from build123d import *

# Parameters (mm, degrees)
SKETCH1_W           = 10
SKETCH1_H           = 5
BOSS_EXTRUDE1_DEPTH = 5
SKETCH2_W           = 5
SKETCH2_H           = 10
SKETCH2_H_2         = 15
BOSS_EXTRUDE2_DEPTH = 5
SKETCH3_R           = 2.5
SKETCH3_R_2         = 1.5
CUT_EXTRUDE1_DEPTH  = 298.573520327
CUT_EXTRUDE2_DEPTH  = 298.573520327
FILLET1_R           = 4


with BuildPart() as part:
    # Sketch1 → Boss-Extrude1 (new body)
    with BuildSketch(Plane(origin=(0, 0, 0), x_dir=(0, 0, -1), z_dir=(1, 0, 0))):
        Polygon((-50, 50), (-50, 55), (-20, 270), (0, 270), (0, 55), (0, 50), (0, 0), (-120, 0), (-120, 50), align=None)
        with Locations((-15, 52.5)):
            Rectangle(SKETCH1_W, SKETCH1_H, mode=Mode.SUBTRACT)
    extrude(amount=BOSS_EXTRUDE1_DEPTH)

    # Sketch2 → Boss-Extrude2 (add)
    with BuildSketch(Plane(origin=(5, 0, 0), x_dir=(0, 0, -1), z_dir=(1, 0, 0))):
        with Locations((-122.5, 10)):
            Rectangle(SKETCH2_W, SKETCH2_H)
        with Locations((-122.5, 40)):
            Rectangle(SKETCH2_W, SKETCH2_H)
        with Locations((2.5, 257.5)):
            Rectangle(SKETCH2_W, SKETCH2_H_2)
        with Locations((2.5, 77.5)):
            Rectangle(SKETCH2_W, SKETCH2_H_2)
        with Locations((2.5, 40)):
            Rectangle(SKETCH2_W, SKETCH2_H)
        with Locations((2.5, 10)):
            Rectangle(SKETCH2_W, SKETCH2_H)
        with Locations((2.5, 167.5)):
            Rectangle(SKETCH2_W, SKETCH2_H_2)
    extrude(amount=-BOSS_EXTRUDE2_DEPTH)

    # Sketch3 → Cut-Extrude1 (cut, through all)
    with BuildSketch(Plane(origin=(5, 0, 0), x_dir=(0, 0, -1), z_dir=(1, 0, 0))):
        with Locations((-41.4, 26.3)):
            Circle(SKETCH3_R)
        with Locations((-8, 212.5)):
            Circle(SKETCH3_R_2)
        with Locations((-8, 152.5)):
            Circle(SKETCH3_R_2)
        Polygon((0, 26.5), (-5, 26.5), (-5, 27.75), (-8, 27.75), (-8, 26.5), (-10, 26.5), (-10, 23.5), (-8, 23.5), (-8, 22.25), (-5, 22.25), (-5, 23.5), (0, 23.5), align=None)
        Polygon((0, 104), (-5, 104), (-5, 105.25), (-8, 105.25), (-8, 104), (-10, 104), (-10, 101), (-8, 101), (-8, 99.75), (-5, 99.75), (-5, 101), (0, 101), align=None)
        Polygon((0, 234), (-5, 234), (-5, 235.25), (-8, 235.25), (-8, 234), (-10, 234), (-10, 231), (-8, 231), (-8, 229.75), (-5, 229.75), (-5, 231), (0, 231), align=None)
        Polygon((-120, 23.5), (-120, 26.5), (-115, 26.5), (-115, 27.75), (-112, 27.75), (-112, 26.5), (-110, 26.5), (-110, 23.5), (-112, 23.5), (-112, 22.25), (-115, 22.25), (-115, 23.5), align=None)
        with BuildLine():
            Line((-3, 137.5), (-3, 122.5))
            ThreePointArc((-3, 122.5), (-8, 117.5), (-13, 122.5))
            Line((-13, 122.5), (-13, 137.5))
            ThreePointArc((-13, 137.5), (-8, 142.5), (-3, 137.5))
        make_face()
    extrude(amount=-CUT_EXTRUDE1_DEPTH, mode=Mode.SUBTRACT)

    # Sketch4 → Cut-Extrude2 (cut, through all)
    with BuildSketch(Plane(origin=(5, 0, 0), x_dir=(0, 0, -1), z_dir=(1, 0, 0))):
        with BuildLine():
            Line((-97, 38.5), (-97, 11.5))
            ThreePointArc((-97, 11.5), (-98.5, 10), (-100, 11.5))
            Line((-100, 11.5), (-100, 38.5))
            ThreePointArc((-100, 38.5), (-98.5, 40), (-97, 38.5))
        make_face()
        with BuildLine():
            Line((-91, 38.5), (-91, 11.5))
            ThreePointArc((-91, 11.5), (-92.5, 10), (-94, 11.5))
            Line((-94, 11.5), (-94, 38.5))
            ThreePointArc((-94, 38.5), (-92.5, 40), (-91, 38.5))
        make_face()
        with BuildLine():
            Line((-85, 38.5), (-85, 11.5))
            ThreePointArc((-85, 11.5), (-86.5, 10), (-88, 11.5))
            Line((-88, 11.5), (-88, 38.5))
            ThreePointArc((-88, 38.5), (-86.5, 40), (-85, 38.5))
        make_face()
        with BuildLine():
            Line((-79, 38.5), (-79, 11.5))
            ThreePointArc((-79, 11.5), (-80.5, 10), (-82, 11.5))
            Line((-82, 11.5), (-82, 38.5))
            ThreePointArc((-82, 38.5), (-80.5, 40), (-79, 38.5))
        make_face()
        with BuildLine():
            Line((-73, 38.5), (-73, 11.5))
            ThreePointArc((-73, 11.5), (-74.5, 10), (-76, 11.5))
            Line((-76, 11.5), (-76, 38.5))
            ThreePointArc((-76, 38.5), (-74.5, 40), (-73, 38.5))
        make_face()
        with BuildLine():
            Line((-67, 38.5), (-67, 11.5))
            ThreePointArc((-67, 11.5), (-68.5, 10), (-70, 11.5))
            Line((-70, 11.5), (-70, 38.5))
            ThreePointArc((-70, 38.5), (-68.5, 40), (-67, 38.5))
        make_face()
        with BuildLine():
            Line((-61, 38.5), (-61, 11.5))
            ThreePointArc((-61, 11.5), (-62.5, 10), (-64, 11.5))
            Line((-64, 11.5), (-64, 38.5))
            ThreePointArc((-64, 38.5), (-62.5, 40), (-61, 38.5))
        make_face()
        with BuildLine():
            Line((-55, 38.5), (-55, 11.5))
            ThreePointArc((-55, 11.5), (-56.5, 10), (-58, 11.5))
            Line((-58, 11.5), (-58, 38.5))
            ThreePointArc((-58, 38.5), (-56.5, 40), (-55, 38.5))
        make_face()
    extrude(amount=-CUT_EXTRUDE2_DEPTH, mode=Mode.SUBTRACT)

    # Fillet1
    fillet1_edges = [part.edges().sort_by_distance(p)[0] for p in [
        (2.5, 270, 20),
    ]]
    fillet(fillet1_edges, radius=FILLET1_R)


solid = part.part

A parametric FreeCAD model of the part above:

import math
import FreeCAD as App
import Part
import Sketcher


def edges_at(feature, points):
    """Names of the edges that pass closest to the given points."""
    edges = feature.Shape.Edges
    near = lambda p: min(range(len(edges)), key=lambda i: edges[i].distToShape(Part.Vertex(*p))[0])
    return sorted({f"Edge{near(p) + 1}" for p in points})


def add_polygon(sketch, points):
    """Adds a closed chain of lines whose ends are joined by coincident constraints."""
    first, n = sketch.GeometryCount, len(points)
    for a, b in zip(points, points[1:] + points[:1]):
        sketch.addGeometry(Part.LineSegment(App.Vector(*a, 0), App.Vector(*b, 0)), False)
    for i in range(n):
        sketch.addConstraint(Sketcher.Constraint("Coincident", first + i, 2, first + (i + 1) % n, 1))

doc = App.newDocument("Part")
body = doc.addObject("PartDesign::Body", "Body")

# Sketch on YZ plane
sketch1 = body.newObject("Sketcher::SketchObject", "Sketch")
sketch1.AttachmentSupport = (doc.getObject("YZ_Plane"), [""])
sketch1.MapMode = "FlatFace"
add_polygon(sketch1, [(55, 50), (50, 50), (50, 120), (0, 120), (0, 0), (270, 0), (270, 20)])  # lines 0-6
add_polygon(sketch1, [(50, 20), (55, 20), (55, 10), (50, 10)])  # lines 7-10
sketch1.addConstraint([
    Sketcher.Constraint("Horizontal", 0),
    Sketcher.Constraint("Vertical", 1),
    Sketcher.Constraint("Horizontal", 2),
    Sketcher.Constraint("Vertical", 3),
    Sketcher.Constraint("Horizontal", 4),
    Sketcher.Constraint("Vertical", 5),
    Sketcher.Constraint("Horizontal", 7),
    Sketcher.Constraint("Vertical", 8),
    Sketcher.Constraint("Horizontal", 9),
    Sketcher.Constraint("Vertical", 10),
    Sketcher.Constraint("Coincident", 3, 2, -1, 1),
    Sketcher.Constraint("Horizontal", 5, 2, 7, 2),
    Sketcher.Constraint("Vertical", 6, 2, 7, 2),
    Sketcher.Constraint("Vertical", 1, 2, 9, 2),
    Sketcher.Constraint("DistanceX", 0, 2, 0, 1, 5.0),
    Sketcher.Constraint("DistanceX", 2, 2, 2, 1, 50.0),
    Sketcher.Constraint("DistanceX", 4, 1, 4, 2, 270.0),
    Sketcher.Constraint("DistanceY", 1, 1, 1, 2, 70.0),
    Sketcher.Constraint("DistanceY", 3, 2, 3, 1, 120.0),
    Sketcher.Constraint("DistanceY", 5, 1, 5, 2, 20.0),
    Sketcher.Constraint("DistanceY", 8, 2, 8, 1, 10.0),
])
pad1 = body.newObject("PartDesign::Pad", "Pad")
pad1.Profile = sketch1
pad1.Length = 5

# Sketch on YZ plane
sketch2 = body.newObject("Sketcher::SketchObject", "Sketch001")
sketch2.AttachmentSupport = (doc.getObject("YZ_Plane"), [""])
sketch2.MapMode = "FlatFace"
sketch2.AttachmentOffset = App.Placement(App.Vector(0, 0, 5), App.Rotation())
add_polygon(sketch2, [(15, 125), (5, 125), (5, 120), (15, 120)])  # lines 0-3
add_polygon(sketch2, [(45, 125), (35, 125), (35, 120), (45, 120)])  # lines 4-7
add_polygon(sketch2, [(265, 0), (250, 0), (250, -5), (265, -5)])  # lines 8-11
add_polygon(sketch2, [(85, 0), (70, 0), (70, -5), (85, -5)])  # lines 12-15
add_polygon(sketch2, [(45, 0), (35, 0), (35, -5), (45, -5)])  # lines 16-19
add_polygon(sketch2, [(15, 0), (5, 0), (5, -5), (15, -5)])  # lines 20-23
add_polygon(sketch2, [(175, 0), (160, 0), (160, -5), (175, -5)])  # lines 24-27
sketch2.addConstraint([
    Sketcher.Constraint("Horizontal", 0),
    Sketcher.Constraint("Vertical", 1),
    Sketcher.Constraint("Horizontal", 2),
    Sketcher.Constraint("Vertical", 3),
    Sketcher.Constraint("Horizontal", 4),
    Sketcher.Constraint("Vertical", 5),
    Sketcher.Constraint("Horizontal", 6),
    Sketcher.Constraint("Vertical", 7),
    Sketcher.Constraint("Horizontal", 8),
    Sketcher.Constraint("Vertical", 9),
    Sketcher.Constraint("Horizontal", 10),
    Sketcher.Constraint("Vertical", 11),
    Sketcher.Constraint("Horizontal", 12),
    Sketcher.Constraint("Vertical", 13),
    Sketcher.Constraint("Horizontal", 14),
    Sketcher.Constraint("Vertical", 15),
    Sketcher.Constraint("Horizontal", 16),
    Sketcher.Constraint("Vertical", 17),
    Sketcher.Constraint("Horizontal", 18),
    Sketcher.Constraint("Vertical", 19),
    Sketcher.Constraint("Horizontal", 20),
    Sketcher.Constraint("Vertical", 21),
    Sketcher.Constraint("Horizontal", 22),
    Sketcher.Constraint("Vertical", 23),
    Sketcher.Constraint("Horizontal", 24),
    Sketcher.Constraint("Vertical", 25),
    Sketcher.Constraint("Horizontal", 26),
    Sketcher.Constraint("Vertical", 27),
    Sketcher.Constraint("PointOnObject", 8, 2, -1),
    Sketcher.Constraint("PointOnObject", 12, 2, -1),
    Sketcher.Constraint("PointOnObject", 16, 2, -1),
    Sketcher.Constraint("PointOnObject", 20, 2, -1),
    Sketcher.Constraint("PointOnObject", 24, 2, -1),
    Sketcher.Constraint("Horizontal", 3, 2, 4, 2),
    Sketcher.Constraint("Horizontal", 2, 2, 5, 2),
    Sketcher.Constraint("Horizontal", 10, 2, 13, 2),
    Sketcher.Constraint("Horizontal", 14, 2, 17, 2),
    Sketcher.Constraint("Horizontal", 18, 2, 21, 2),
    Sketcher.Constraint("Horizontal", 22, 2, 25, 2),
    Sketcher.Constraint("Vertical", 5, 2, 16, 2),
    Sketcher.Constraint("Vertical", 7, 2, 18, 2),
    Sketcher.Constraint("Vertical", 1, 2, 20, 2),
    Sketcher.Constraint("Vertical", 3, 2, 22, 2),
    Sketcher.Constraint("Equal", 2, 4),
    Sketcher.Constraint("Equal", 10, 12),
    Sketcher.Constraint("Equal", 14, 24),
    Sketcher.Constraint("Equal", 7, 9),
    Sketcher.Constraint("DistanceX", 0, 2, 0, 1, 10.0),
    Sketcher.Constraint("DistanceX", 8, 2, 8, 1, 15.0),
    Sketcher.Constraint("DistanceY", 1, 2, 1, 1, 5.0),
    Sketcher.Constraint("DistanceX", -1, 1, 0, 2, 5.0),
    Sketcher.Constraint("DistanceY", -1, 1, 0, 2, 125.0),
    Sketcher.Constraint("DistanceX", -1, 1, 4, 2, 35.0),
    Sketcher.Constraint("DistanceX", -1, 1, 8, 2, 250.0),
    Sketcher.Constraint("DistanceX", -1, 1, 12, 2, 70.0),
    Sketcher.Constraint("DistanceX", -1, 1, 24, 2, 160.0),
])
pad2 = body.newObject("PartDesign::Pad", "Pad001")
pad2.Profile = sketch2
pad2.Length = 5
pad2.Reversed = True

# Sketch on YZ plane
sketch3 = body.newObject("Sketcher::SketchObject", "Sketch002")
sketch3.AttachmentSupport = (doc.getObject("YZ_Plane"), [""])
sketch3.MapMode = "FlatFace"
sketch3.AttachmentOffset = App.Placement(App.Vector(0, 0, 5), App.Rotation())
sketch3.addGeometry(Part.Circle(App.Vector(26.3, 41.4, 0), App.Vector(0, 0, 1), 2.5), False)  # 0
sketch3.addGeometry(Part.Circle(App.Vector(212.5, 8, 0), App.Vector(0, 0, 1), 1.5), False)  # 1
sketch3.addGeometry(Part.Circle(App.Vector(152.5, 8, 0), App.Vector(0, 0, 1), 1.5), False)  # 2
add_polygon(sketch3, [(26.5, 0), (26.5, 5), (27.8, 5), (27.8, 8), (26.5, 8), (26.5, 10), (23.5, 10), (23.5, 8), (22.2, 8), (22.2, 5), (23.5, 5), (23.5, 0)])  # lines 3-14
add_polygon(sketch3, [(104, 0), (104, 5), (105.2, 5), (105.2, 8), (104, 8), (104, 10), (101, 10), (101, 8), (99.8, 8), (99.8, 5), (101, 5), (101, 0)])  # lines 15-26
add_polygon(sketch3, [(234, 0), (234, 5), (235.2, 5), (235.2, 8), (234, 8), (234, 10), (231, 10), (231, 8), (229.8, 8), (229.8, 5), (231, 5), (231, 0)])  # lines 27-38
add_polygon(sketch3, [(26.5, 120), (23.5, 120), (23.5, 115), (22.2, 115), (22.2, 112), (23.5, 112), (23.5, 110), (26.5, 110), (26.5, 112), (27.8, 112), (27.8, 115), (26.5, 115)])  # lines 39-50
sketch3.addGeometry(Part.LineSegment(App.Vector(122.5, 3, 0), App.Vector(137.5, 3, 0)), False)  # 51
sketch3.addGeometry(Part.ArcOfCircle(Part.Circle(App.Vector(137.5, 8, 0), App.Vector(0, 0, 1), 5), math.radians(-90), math.radians(90)), False)  # 52
sketch3.addGeometry(Part.LineSegment(App.Vector(137.5, 13, 0), App.Vector(122.5, 13, 0)), False)  # 53
sketch3.addGeometry(Part.ArcOfCircle(Part.Circle(App.Vector(122.5, 8, 0), App.Vector(0, 0, 1), 5), math.radians(90), math.radians(270)), False)  # 54
sketch3.addConstraint([
    Sketcher.Constraint("Tangent", 51, 2, 52, 1),
    Sketcher.Constraint("Tangent", 52, 2, 53, 1),
    Sketcher.Constraint("Tangent", 53, 2, 54, 1),
    Sketcher.Constraint("Tangent", 54, 2, 51, 1),
    Sketcher.Constraint("Vertical", 3),
    Sketcher.Constraint("Horizontal", 4),
    Sketcher.Constraint("Vertical", 5),
    Sketcher.Constraint("Horizontal", 6),
    Sketcher.Constraint("Vertical", 7),
    Sketcher.Constraint("Horizontal", 8),
    Sketcher.Constraint("Vertical", 9),
    Sketcher.Constraint("Horizontal", 10),
    Sketcher.Constraint("Vertical", 11),
    Sketcher.Constraint("Horizontal", 12),
    Sketcher.Constraint("Vertical", 13),
    Sketcher.Constraint("Horizontal", 14),
    Sketcher.Constraint("Vertical", 15),
    Sketcher.Constraint("Horizontal", 16),
    Sketcher.Constraint("Vertical", 17),
    Sketcher.Constraint("Horizontal", 18),
    Sketcher.Constraint("Vertical", 19),
    Sketcher.Constraint("Horizontal", 20),
    Sketcher.Constraint("Vertical", 21),
    Sketcher.Constraint("Horizontal", 22),
    Sketcher.Constraint("Vertical", 23),
    Sketcher.Constraint("Horizontal", 24),
    Sketcher.Constraint("Vertical", 25),
    Sketcher.Constraint("Horizontal", 26),
    Sketcher.Constraint("Vertical", 27),
    Sketcher.Constraint("Horizontal", 28),
    Sketcher.Constraint("Vertical", 29),
    Sketcher.Constraint("Horizontal", 30),
    Sketcher.Constraint("Vertical", 31),
    Sketcher.Constraint("Horizontal", 32),
    Sketcher.Constraint("Vertical", 33),
    Sketcher.Constraint("Horizontal", 34),
    Sketcher.Constraint("Vertical", 35),
    Sketcher.Constraint("Horizontal", 36),
    Sketcher.Constraint("Vertical", 37),
    Sketcher.Constraint("Horizontal", 38),
    Sketcher.Constraint("Horizontal", 39),
    Sketcher.Constraint("Vertical", 40),
    Sketcher.Constraint("Horizontal", 41),
    Sketcher.Constraint("Vertical", 42),
    Sketcher.Constraint("Horizontal", 43),
    Sketcher.Constraint("Vertical", 44),
    Sketcher.Constraint("Horizontal", 45),
    Sketcher.Constraint("Vertical", 46),
    Sketcher.Constraint("Horizontal", 47),
    Sketcher.Constraint("Vertical", 48),
    Sketcher.Constraint("Horizontal", 49),
    Sketcher.Constraint("Vertical", 50),
    Sketcher.Constraint("Horizontal", 51),
    Sketcher.Constraint("Horizontal", 53),
    Sketcher.Constraint("Equal", 1, 2),
    Sketcher.Constraint("PointOnObject", 13, 2, -1),
    Sketcher.Constraint("PointOnObject", 25, 2, -1),
    Sketcher.Constraint("PointOnObject", 37, 2, -1),
    Sketcher.Constraint("Horizontal", 1, 3, 2, 3),
    Sketcher.Constraint("Horizontal", 2, 3, 52, 3),
    Sketcher.Constraint("Horizontal", 54, 3, 5, 2),
    Sketcher.Constraint("Horizontal", 6, 2, 9, 2),
    Sketcher.Constraint("Horizontal", 4, 2, 11, 2),
    Sketcher.Constraint("Horizontal", 12, 2, 15, 2),
    Sketcher.Constraint("Horizontal", 10, 2, 17, 2),
    Sketcher.Constraint("Horizontal", 8, 2, 19, 2),
    Sketcher.Constraint("Horizontal", 18, 2, 21, 2),
    Sketcher.Constraint("Horizontal", 16, 2, 23, 2),
    Sketcher.Constraint("Horizontal", 24, 2, 27, 2),
    Sketcher.Constraint("Horizontal", 22, 2, 29, 2),
    Sketcher.Constraint("Horizontal", 20, 2, 31, 2),
    Sketcher.Constraint("Horizontal", 30, 2, 33, 2),
    Sketcher.Constraint("Horizontal", 28, 2, 35, 2),
    Sketcher.Constraint("Horizontal", 43, 2, 46, 2),
    Sketcher.Constraint("Horizontal", 41, 2, 48, 2),
    Sketcher.Constraint("Vertical", 3, 2, 6, 2),
    Sketcher.Constraint("Vertical", 9, 2, 12, 2),
    Sketcher.Constraint("Vertical", 15, 2, 18, 2),
    Sketcher.Constraint("Vertical", 21, 2, 24, 2),
    Sketcher.Constraint("Vertical", 27, 2, 30, 2),
    Sketcher.Constraint("Vertical", 33, 2, 36, 2),
    Sketcher.Constraint("Vertical", 13, 2, 39, 2),
    Sketcher.Constraint("Vertical", 11, 2, 41, 2),
    Sketcher.Constraint("Vertical", 40, 2, 43, 2),
    Sketcher.Constraint("Vertical", 14, 2, 45, 2),
    Sketcher.Constraint("Vertical", 5, 2, 47, 2),
    Sketcher.Constraint("Vertical", 46, 2, 49, 2),
    Sketcher.Constraint("Equal", 6, 10),
    Sketcher.Constraint("Equal", 12, 16),
    Sketcher.Constraint("Equal", 14, 20),
    Sketcher.Constraint("Equal", 18, 22),
    Sketcher.Constraint("Equal", 24, 28),
    Sketcher.Constraint("Equal", 26, 32),
    Sketcher.Constraint("Equal", 30, 34),
    Sketcher.Constraint("Equal", 45, 5),
    Sketcher.Constraint("Equal", 37, 40),
    Sketcher.Constraint("Equal", 35, 42),
    Sketcher.Constraint("Equal", 33, 44),
    Sketcher.Constraint("Diameter", 0, 5.0),
    Sketcher.Constraint("Diameter", 1, 3.0),
    Sketcher.Constraint("Radius", 52, 5.0),
    Sketcher.Constraint("DistanceX", 8, 2, 8, 1, 3.0),
    Sketcher.Constraint("DistanceX", 51, 1, 51, 2, 15.0),
    Sketcher.Constraint("DistanceY", 3, 1, 3, 2, 5.0),
    Sketcher.Constraint("DistanceY", 7, 1, 7, 2, 2.0),
    Sketcher.Constraint("DistanceX", -1, 1, 15, 2, 104.0),
    Sketcher.Constraint("DistanceX", -1, 1, 27, 2, 234.0),
    Sketcher.Constraint("DistanceY", -1, 1, 39, 2, 120.0),
    Sketcher.Constraint("DistanceX", 2, 3, 1, 3, 60.0),
    Sketcher.Constraint("DistanceX", 52, 3, 2, 3, 15.0),
    Sketcher.Constraint("DistanceX", 3, 2, 54, 3, 96.0),
    Sketcher.Constraint("DistanceX", 4, 1, 4, 2, 1.25),
    Sketcher.Constraint("DistanceX", -1, 1, 0, 3, 26.3),
    Sketcher.Constraint("DistanceY", -1, 1, 0, 3, 41.4),
    Sketcher.Constraint("DistanceX", -1, 1, 1, 3, 212.5),
])
pocket1 = body.newObject("PartDesign::Pocket", "Pocket")
pocket1.Profile = sketch3
pocket1.Type = "ThroughAll"

# Sketch on YZ plane
sketch4 = body.newObject("Sketcher::SketchObject", "Sketch003")
sketch4.AttachmentSupport = (doc.getObject("YZ_Plane"), [""])
sketch4.MapMode = "FlatFace"
sketch4.AttachmentOffset = App.Placement(App.Vector(0, 0, 5), App.Rotation())
sketch4.addGeometry([
    Part.LineSegment(App.Vector(11.5, 97, 0), App.Vector(38.5, 97, 0)),  # 0
    Part.ArcOfCircle(Part.Circle(App.Vector(38.5, 98.5, 0), App.Vector(0, 0, 1), 1.5), math.radians(-90), math.radians(90)),  # 1
    Part.LineSegment(App.Vector(38.5, 100, 0), App.Vector(11.5, 100, 0)),  # 2
    Part.ArcOfCircle(Part.Circle(App.Vector(11.5, 98.5, 0), App.Vector(0, 0, 1), 1.5), math.radians(90), math.radians(270)),  # 3
    Part.LineSegment(App.Vector(11.5, 91, 0), App.Vector(38.5, 91, 0)),  # 4
    Part.ArcOfCircle(Part.Circle(App.Vector(38.5, 92.5, 0), App.Vector(0, 0, 1), 1.5), math.radians(-90), math.radians(90)),  # 5
    Part.LineSegment(App.Vector(38.5, 94, 0), App.Vector(11.5, 94, 0)),  # 6
    Part.ArcOfCircle(Part.Circle(App.Vector(11.5, 92.5, 0), App.Vector(0, 0, 1), 1.5), math.radians(90), math.radians(270)),  # 7
    Part.LineSegment(App.Vector(11.5, 85, 0), App.Vector(38.5, 85, 0)),  # 8
    Part.ArcOfCircle(Part.Circle(App.Vector(38.5, 86.5, 0), App.Vector(0, 0, 1), 1.5), math.radians(-90), math.radians(90)),  # 9
    Part.LineSegment(App.Vector(38.5, 88, 0), App.Vector(11.5, 88, 0)),  # 10
    Part.ArcOfCircle(Part.Circle(App.Vector(11.5, 86.5, 0), App.Vector(0, 0, 1), 1.5), math.radians(90), math.radians(270)),  # 11
    Part.LineSegment(App.Vector(11.5, 79, 0), App.Vector(38.5, 79, 0)),  # 12
    Part.ArcOfCircle(Part.Circle(App.Vector(38.5, 80.5, 0), App.Vector(0, 0, 1), 1.5), math.radians(-90), math.radians(90)),  # 13
    Part.LineSegment(App.Vector(38.5, 82, 0), App.Vector(11.5, 82, 0)),  # 14
    Part.ArcOfCircle(Part.Circle(App.Vector(11.5, 80.5, 0), App.Vector(0, 0, 1), 1.5), math.radians(90), math.radians(270)),  # 15
    Part.LineSegment(App.Vector(11.5, 73, 0), App.Vector(38.5, 73, 0)),  # 16
    Part.ArcOfCircle(Part.Circle(App.Vector(38.5, 74.5, 0), App.Vector(0, 0, 1), 1.5), math.radians(-90), math.radians(90)),  # 17
    Part.LineSegment(App.Vector(38.5, 76, 0), App.Vector(11.5, 76, 0)),  # 18
    Part.ArcOfCircle(Part.Circle(App.Vector(11.5, 74.5, 0), App.Vector(0, 0, 1), 1.5), math.radians(90), math.radians(270)),  # 19
    Part.LineSegment(App.Vector(11.5, 67, 0), App.Vector(38.5, 67, 0)),  # 20
    Part.ArcOfCircle(Part.Circle(App.Vector(38.5, 68.5, 0), App.Vector(0, 0, 1), 1.5), math.radians(-90), math.radians(90)),  # 21
    Part.LineSegment(App.Vector(38.5, 70, 0), App.Vector(11.5, 70, 0)),  # 22
    Part.ArcOfCircle(Part.Circle(App.Vector(11.5, 68.5, 0), App.Vector(0, 0, 1), 1.5), math.radians(90), math.radians(270)),  # 23
    Part.LineSegment(App.Vector(11.5, 61, 0), App.Vector(38.5, 61, 0)),  # 24
    Part.ArcOfCircle(Part.Circle(App.Vector(38.5, 62.5, 0), App.Vector(0, 0, 1), 1.5), math.radians(-90), math.radians(90)),  # 25
    Part.LineSegment(App.Vector(38.5, 64, 0), App.Vector(11.5, 64, 0)),  # 26
    Part.ArcOfCircle(Part.Circle(App.Vector(11.5, 62.5, 0), App.Vector(0, 0, 1), 1.5), math.radians(90), math.radians(270)),  # 27
    Part.LineSegment(App.Vector(11.5, 55, 0), App.Vector(38.5, 55, 0)),  # 28
    Part.ArcOfCircle(Part.Circle(App.Vector(38.5, 56.5, 0), App.Vector(0, 0, 1), 1.5), math.radians(-90), math.radians(90)),  # 29
    Part.LineSegment(App.Vector(38.5, 58, 0), App.Vector(11.5, 58, 0)),  # 30
    Part.ArcOfCircle(Part.Circle(App.Vector(11.5, 56.5, 0), App.Vector(0, 0, 1), 1.5), math.radians(90), math.radians(270)),  # 31
], False)
sketch4.addConstraint([
    Sketcher.Constraint("Tangent", 0, 2, 1, 1),
    Sketcher.Constraint("Tangent", 1, 2, 2, 1),
    Sketcher.Constraint("Tangent", 2, 2, 3, 1),
    Sketcher.Constraint("Tangent", 3, 2, 0, 1),
    Sketcher.Constraint("Tangent", 4, 2, 5, 1),
    Sketcher.Constraint("Tangent", 5, 2, 6, 1),
    Sketcher.Constraint("Tangent", 6, 2, 7, 1),
    Sketcher.Constraint("Tangent", 7, 2, 4, 1),
    Sketcher.Constraint("Tangent", 8, 2, 9, 1),
    Sketcher.Constraint("Tangent", 9, 2, 10, 1),
    Sketcher.Constraint("Tangent", 10, 2, 11, 1),
    Sketcher.Constraint("Tangent", 11, 2, 8, 1),
    Sketcher.Constraint("Tangent", 12, 2, 13, 1),
    Sketcher.Constraint("Tangent", 13, 2, 14, 1),
    Sketcher.Constraint("Tangent", 14, 2, 15, 1),
    Sketcher.Constraint("Tangent", 15, 2, 12, 1),
    Sketcher.Constraint("Tangent", 16, 2, 17, 1),
    Sketcher.Constraint("Tangent", 17, 2, 18, 1),
    Sketcher.Constraint("Tangent", 18, 2, 19, 1),
    Sketcher.Constraint("Tangent", 19, 2, 16, 1),
    Sketcher.Constraint("Tangent", 20, 2, 21, 1),
    Sketcher.Constraint("Tangent", 21, 2, 22, 1),
    Sketcher.Constraint("Tangent", 22, 2, 23, 1),
    Sketcher.Constraint("Tangent", 23, 2, 20, 1),
    Sketcher.Constraint("Tangent", 24, 2, 25, 1),
    Sketcher.Constraint("Tangent", 25, 2, 26, 1),
    Sketcher.Constraint("Tangent", 26, 2, 27, 1),
    Sketcher.Constraint("Tangent", 27, 2, 24, 1),
    Sketcher.Constraint("Tangent", 28, 2, 29, 1),
    Sketcher.Constraint("Tangent", 29, 2, 30, 1),
    Sketcher.Constraint("Tangent", 30, 2, 31, 1),
    Sketcher.Constraint("Tangent", 31, 2, 28, 1),
    Sketcher.Constraint("Horizontal", 0),
    Sketcher.Constraint("Horizontal", 2),
    Sketcher.Constraint("Horizontal", 4),
    Sketcher.Constraint("Horizontal", 6),
    Sketcher.Constraint("Horizontal", 8),
    Sketcher.Constraint("Horizontal", 10),
    Sketcher.Constraint("Horizontal", 12),
    Sketcher.Constraint("Horizontal", 14),
    Sketcher.Constraint("Horizontal", 16),
    Sketcher.Constraint("Horizontal", 18),
    Sketcher.Constraint("Horizontal", 20),
    Sketcher.Constraint("Horizontal", 22),
    Sketcher.Constraint("Horizontal", 24),
    Sketcher.Constraint("Horizontal", 26),
    Sketcher.Constraint("Horizontal", 28),
    Sketcher.Constraint("Horizontal", 30),
    Sketcher.Constraint("Equal", 3, 5),
    Sketcher.Constraint("Equal", 7, 9),
    Sketcher.Constraint("Equal", 11, 13),
    Sketcher.Constraint("Equal", 15, 17),
    Sketcher.Constraint("Equal", 19, 21),
    Sketcher.Constraint("Equal", 23, 25),
    Sketcher.Constraint("Equal", 27, 29),
    Sketcher.Constraint("Vertical", 1, 3, 5, 3),
    Sketcher.Constraint("Vertical", 3, 3, 7, 3),
    Sketcher.Constraint("Vertical", 5, 3, 9, 3),
    Sketcher.Constraint("Vertical", 7, 3, 11, 3),
    Sketcher.Constraint("Vertical", 9, 3, 13, 3),
    Sketcher.Constraint("Vertical", 11, 3, 15, 3),
    Sketcher.Constraint("Vertical", 13, 3, 17, 3),
    Sketcher.Constraint("Vertical", 15, 3, 19, 3),
    Sketcher.Constraint("Vertical", 17, 3, 21, 3),
    Sketcher.Constraint("Vertical", 19, 3, 23, 3),
    Sketcher.Constraint("Vertical", 21, 3, 25, 3),
    Sketcher.Constraint("Vertical", 23, 3, 27, 3),
    Sketcher.Constraint("Vertical", 25, 3, 29, 3),
    Sketcher.Constraint("Vertical", 27, 3, 31, 3),
    Sketcher.Constraint("Radius", 1, 1.5),
    Sketcher.Constraint("DistanceX", 0, 1, 0, 2, 27.0),
    Sketcher.Constraint("DistanceY", -1, 1, 0, 2, 97.0),
    Sketcher.Constraint("DistanceY", -1, 1, 4, 2, 91.0),
    Sketcher.Constraint("DistanceY", -1, 1, 8, 2, 85.0),
    Sketcher.Constraint("DistanceY", -1, 1, 12, 2, 79.0),
    Sketcher.Constraint("DistanceY", -1, 1, 16, 2, 73.0),
    Sketcher.Constraint("DistanceY", -1, 1, 20, 2, 67.0),
    Sketcher.Constraint("DistanceY", -1, 1, 24, 2, 61.0),
    Sketcher.Constraint("DistanceY", -1, 1, 28, 2, 55.0),
    Sketcher.Constraint("DistanceX", -1, 1, 1, 3, 38.5),
])
pocket2 = body.newObject("PartDesign::Pocket", "Pocket001")
pocket2.Profile = sketch4
pocket2.Type = "ThroughAll"
doc.recompute()

fillet = body.newObject("PartDesign::Fillet", "Fillet")
fillet.Base = (pocket2, edges_at(pocket2, [(2.5, 270, 20)]))
fillet.Radius = 4

doc.recompute()
